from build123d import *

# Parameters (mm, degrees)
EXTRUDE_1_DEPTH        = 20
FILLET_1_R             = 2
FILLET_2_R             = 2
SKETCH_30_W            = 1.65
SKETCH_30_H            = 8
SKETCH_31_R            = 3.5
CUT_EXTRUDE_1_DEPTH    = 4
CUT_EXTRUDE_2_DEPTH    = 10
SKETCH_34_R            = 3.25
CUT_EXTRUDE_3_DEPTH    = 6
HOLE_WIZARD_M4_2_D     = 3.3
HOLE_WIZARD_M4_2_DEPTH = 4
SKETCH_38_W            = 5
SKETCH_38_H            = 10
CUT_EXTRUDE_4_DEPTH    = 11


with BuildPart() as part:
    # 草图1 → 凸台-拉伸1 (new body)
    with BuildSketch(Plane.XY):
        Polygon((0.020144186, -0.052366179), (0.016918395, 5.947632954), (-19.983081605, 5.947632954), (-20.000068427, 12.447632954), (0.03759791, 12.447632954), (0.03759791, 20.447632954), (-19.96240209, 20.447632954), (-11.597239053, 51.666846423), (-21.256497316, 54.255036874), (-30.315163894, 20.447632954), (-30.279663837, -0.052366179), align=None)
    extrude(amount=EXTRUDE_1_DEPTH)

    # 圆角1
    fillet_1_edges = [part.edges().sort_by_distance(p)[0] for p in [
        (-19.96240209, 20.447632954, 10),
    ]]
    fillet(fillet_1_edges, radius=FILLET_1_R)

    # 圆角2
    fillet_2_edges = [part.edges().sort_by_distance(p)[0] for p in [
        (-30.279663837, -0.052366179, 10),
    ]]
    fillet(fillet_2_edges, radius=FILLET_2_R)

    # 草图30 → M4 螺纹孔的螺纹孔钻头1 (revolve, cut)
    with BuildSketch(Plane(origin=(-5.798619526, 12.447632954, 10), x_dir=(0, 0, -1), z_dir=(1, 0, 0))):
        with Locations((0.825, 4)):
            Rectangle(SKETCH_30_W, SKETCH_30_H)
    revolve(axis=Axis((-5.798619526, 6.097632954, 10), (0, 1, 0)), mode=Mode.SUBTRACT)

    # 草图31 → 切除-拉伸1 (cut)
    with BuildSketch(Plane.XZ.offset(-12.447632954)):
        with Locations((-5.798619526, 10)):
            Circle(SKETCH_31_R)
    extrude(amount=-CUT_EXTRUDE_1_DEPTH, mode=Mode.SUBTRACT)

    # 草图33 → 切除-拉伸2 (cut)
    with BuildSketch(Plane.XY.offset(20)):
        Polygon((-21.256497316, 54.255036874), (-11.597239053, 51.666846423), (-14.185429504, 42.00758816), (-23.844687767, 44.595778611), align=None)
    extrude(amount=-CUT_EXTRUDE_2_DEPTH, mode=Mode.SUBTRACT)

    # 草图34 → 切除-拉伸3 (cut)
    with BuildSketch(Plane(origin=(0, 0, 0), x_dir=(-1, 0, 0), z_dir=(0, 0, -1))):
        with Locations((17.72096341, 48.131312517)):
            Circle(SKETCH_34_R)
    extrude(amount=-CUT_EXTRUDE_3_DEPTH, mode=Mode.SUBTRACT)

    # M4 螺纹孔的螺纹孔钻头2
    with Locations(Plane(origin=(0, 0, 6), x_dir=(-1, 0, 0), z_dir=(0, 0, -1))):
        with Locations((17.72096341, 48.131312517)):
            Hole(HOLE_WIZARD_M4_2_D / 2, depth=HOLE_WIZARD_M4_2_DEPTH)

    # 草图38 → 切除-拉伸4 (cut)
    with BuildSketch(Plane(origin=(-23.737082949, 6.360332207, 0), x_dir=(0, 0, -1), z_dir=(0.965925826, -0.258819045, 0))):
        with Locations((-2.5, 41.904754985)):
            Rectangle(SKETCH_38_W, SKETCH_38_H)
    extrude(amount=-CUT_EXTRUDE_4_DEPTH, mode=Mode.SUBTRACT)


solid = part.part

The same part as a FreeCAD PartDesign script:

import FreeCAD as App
import Part
import Sketcher
Q = App.Units.Quantity


def edges_at(feature, points):
    """Names of the edges that pass closest to the given points."""
    edges = feature.Shape.Edges
    near = lambda p: min(range(len(edges)), key=lambda i: edges[i].distToShape(Part.Vertex(*p))[0])
    return sorted({f"Edge{near(p) + 1}" for p in points})

doc = App.newDocument("Part")
body = doc.addObject("PartDesign::Body", "Body")

# Sketch on XY plane
sketch1 = body.newObject("Sketcher::SketchObject", "Sketch")
sketch1.AttachmentSupport = (doc.getObject("XY_Plane"), [""])
sketch1.MapMode = "FlatFace"
sketch1.addGeometry(Part.LineSegment(App.Vector(0, 0, 0), App.Vector(0, 6, 0)), False)
sketch1.addGeometry(Part.LineSegment(App.Vector(0, 6, 0), App.Vector(-20, 6, 0)), False)
sketch1.addGeometry(Part.LineSegment(App.Vector(-20, 6, 0), App.Vector(-20, 12, 0)), False)
sketch1.addGeometry(Part.LineSegment(App.Vector(-20, 12, 0), App.Vector(0, 12, 0)), False)
sketch1.addGeometry(Part.LineSegment(App.Vector(0, 12, 0), App.Vector(0, 20, 0)), False)
sketch1.addGeometry(Part.LineSegment(App.Vector(0, 20, 0), App.Vector(-20, 20, 0)), False)
sketch1.addGeometry(Part.LineSegment(App.Vector(-20, 20, 0), App.Vector(-12, 52, 0)), False)
sketch1.addGeometry(Part.LineSegment(App.Vector(-12, 52, 0), App.Vector(-21, 54, 0)), False)
sketch1.addGeometry(Part.LineSegment(App.Vector(-21, 54, 0), App.Vector(-30, 20, 0)), False)
sketch1.addGeometry(Part.LineSegment(App.Vector(-30, 20, 0), App.Vector(-30, 0, 0)), False)
sketch1.addGeometry(Part.LineSegment(App.Vector(-30, 0, 0), App.Vector(0, 0, 0)), False)
sketch1.addConstraint(Sketcher.Constraint("Coincident", 0, 2, 1, 1))
sketch1.addConstraint(Sketcher.Constraint("Coincident", 1, 2, 2, 1))
sketch1.addConstraint(Sketcher.Constraint("Coincident", 2, 2, 3, 1))
sketch1.addConstraint(Sketcher.Constraint("Coincident", 3, 2, 4, 1))
sketch1.addConstraint(Sketcher.Constraint("Coincident", 4, 2, 5, 1))
sketch1.addConstraint(Sketcher.Constraint("Coincident", 5, 2, 6, 1))
sketch1.addConstraint(Sketcher.Constraint("Coincident", 6, 2, 7, 1))
sketch1.addConstraint(Sketcher.Constraint("Coincident", 7, 2, 8, 1))
sketch1.addConstraint(Sketcher.Constraint("Coincident", 8, 2, 9, 1))
sketch1.addConstraint(Sketcher.Constraint("Coincident", 9, 2, 10, 1))
sketch1.addConstraint(Sketcher.Constraint("Coincident", 10, 2, 0, 1))
sketch1.addConstraint(Sketcher.Constraint("Horizontal", 1))
sketch1.addConstraint(Sketcher.Constraint("Horizontal", 3))
sketch1.addConstraint(Sketcher.Constraint("Vertical", 4))
sketch1.addConstraint(Sketcher.Constraint("Horizontal", 5))
sketch1.addConstraint(Sketcher.Constraint("Horizontal", 10))
sketch1.addConstraint(Sketcher.Constraint("Perpendicular", 6, 7))
sketch1.addConstraint(Sketcher.Constraint("Perpendicular", 7, 8))
sketch1.addConstraint(Sketcher.Constraint("Horizontal", 5, 2, 8, 2))
sketch1.addConstraint(Sketcher.Constraint("Equal", 1, 5))
sketch1.addConstraint(Sketcher.Constraint("DistanceX", 1, 2, 1, 1, 20.0))
sketch1.addConstraint(Sketcher.Constraint("DistanceY", 4, 1, 4, 2, 8.0))
sketch1.addConstraint(Sketcher.Constraint("Angle", 6, Q("75 deg")))
sketch1.addConstraint(Sketcher.Constraint("Distance", 0, 6.0))
sketch1.addConstraint(Sketcher.Constraint("Distance", 7, 10.0))
sketch1.addConstraint(Sketcher.Constraint("Distance", 8, 35.0))
sketch1.addConstraint(Sketcher.Constraint("DistanceY", 1, 2, 2, 2, 6.5))
sketch1.addConstraint(Sketcher.Constraint("DistanceX", 10, 1, 10, 2, 30.299808))
sketch1.addConstraint(Sketcher.Constraint("DistanceX", 8, 2, 9, 2, 0.0355))
sketch1.addConstraint(Sketcher.Constraint("DistanceX", 3, 1, 3, 2, 20.037666))
sketch1.addConstraint(Sketcher.Constraint("DistanceX", -1, 1, 0, 2, 0.016918))
sketch1.addConstraint(Sketcher.Constraint("DistanceX", 2, 2, -1, 1, 20.000068))
sketch1.addConstraint(Sketcher.Constraint("DistanceY", -1, 1, 0, 2, 5.947633))
pad1 = body.newObject("PartDesign::Pad", "Pad")
pad1.Profile = sketch1
pad1.Length = 20
doc.recompute()

fillet = body.newObject("PartDesign::Fillet", "Fillet")
fillet.Base = (pad1, edges_at(pad1, [(-19.962, 20.448, 10)]))
fillet.Radius = 2
doc.recompute()

fillet2 = body.newObject("PartDesign::Fillet", "Fillet001")
fillet2.Base = (fillet, edges_at(fillet, [(-30.28, -0.052, 10)]))
fillet2.Radius = 2

# Sketch on YZ plane
sketch2 = body.newObject("Sketcher::SketchObject", "Sketch001")
sketch2.AttachmentSupport = (doc.getObject("YZ_Plane"), [""])
sketch2.MapMode = "FlatFace"
sketch2.AttachmentOffset = App.Placement(App.Vector(0, 0, -5.79862), App.Rotation())
sketch2.addGeometry(Part.LineSegment(App.Vector(20.4, 10, 0), App.Vector(12.4, 10, 0)), False)
sketch2.addGeometry(Part.LineSegment(App.Vector(12.4, 10, 0), App.Vector(12.4, 8.3, 0)), False)
sketch2.addGeometry(Part.LineSegment(App.Vector(12.4, 8.3, 0), App.Vector(20.4, 8.3, 0)), False)
sketch2.addGeometry(Part.LineSegment(App.Vector(20.4, 8.3, 0), App.Vector(20.4, 10, 0)), False)
sketch2.addGeometry(Part.LineSegment(App.Vector(12.4, 10, 0), App.Vector(20.4, 10, 0)), True)  # axis
sketch2.addConstraint(Sketcher.Constraint("Coincident", 0, 2, 1, 1))
sketch2.addConstraint(Sketcher.Constraint("Coincident", 1, 2, 2, 1))
sketch2.addConstraint(Sketcher.Constraint("Coincident", 2, 2, 3, 1))
sketch2.addConstraint(Sketcher.Constraint("Coincident", 3, 2, 0, 1))
sketch2.addConstraint(Sketcher.Constraint("Horizontal", 0))
sketch2.addConstraint(Sketcher.Constraint("Vertical", 1))
sketch2.addConstraint(Sketcher.Constraint("Horizontal", 2))
sketch2.addConstraint(Sketcher.Constraint("Vertical", 3))
sketch2.addConstraint(Sketcher.Constraint("Horizontal", 4))
sketch2.addConstraint(Sketcher.Constraint("Coincident", 4, 1, 0, 2))
sketch2.addConstraint(Sketcher.Constraint("Vertical", 2, 2, 4, 2))
sketch2.addConstraint(Sketcher.Constraint("DistanceX", 0, 2, 0, 1, 8.0))
sketch2.addConstraint(Sketcher.Constraint("DistanceY", -1, 1, 0, 2, 10.0))
sketch2.addConstraint(Sketcher.Constraint("DistanceY", 1, 2, 1, 1, 1.65))
sketch2.addConstraint(Sketcher.Constraint("DistanceX", -1, 1, 0, 2, 12.447633))
groove = body.newObject("PartDesign::Groove", "Groove")
groove.Profile = sketch2
groove.ReferenceAxis = (sketch2, ["Axis0"])
groove.Angle = 360

# Sketch on XZ plane
sketch3 = body.newObject("Sketcher::SketchObject", "Sketch002")
sketch3.AttachmentSupport = (doc.getObject("XZ_Plane"), [""])
sketch3.MapMode = "FlatFace"
sketch3.AttachmentOffset = App.Placement(App.Vector(0, 0, -12.447633), App.Rotation())
sketch3.addGeometry(Part.Circle(App.Vector(-5.8, 10, 0), App.Vector(0, 0, 1), 3.5), False)
sketch3.addConstraint(Sketcher.Constraint("Diameter", 0, 7.0))
sketch3.addConstraint(Sketcher.Constraint("DistanceY", -1, 1, 0, 3, 10.0))
sketch3.addConstraint(Sketcher.Constraint("DistanceX", 0, 3, -1, 1, 5.79862))
pocket1 = body.newObject("PartDesign::Pocket", "Pocket")
pocket1.Profile = sketch3
pocket1.Length = 4

# Sketch on XY plane
sketch4 = body.newObject("Sketcher::SketchObject", "Sketch003")
sketch4.AttachmentSupport = (doc.getObject("XY_Plane"), [""])
sketch4.MapMode = "FlatFace"
sketch4.AttachmentOffset = App.Placement(App.Vector(0, 0, 20), App.Rotation())
sketch4.addGeometry(Part.LineSegment(App.Vector(-12, 52, 0), App.Vector(-21, 54, 0)), False)
sketch4.addGeometry(Part.LineSegment(App.Vector(-21, 54, 0), App.Vector(-24, 45, 0)), False)
sketch4.addGeometry(Part.LineSegment(App.Vector(-24, 45, 0), App.Vector(-14, 42, 0)), False)
sketch4.addGeometry(Part.LineSegment(App.Vector(-14, 42, 0), App.Vector(-12, 52, 0)), False)
sketch4.addConstraint(Sketcher.Constraint("Coincident", 0, 2, 1, 1))
sketch4.addConstraint(Sketcher.Constraint("Coincident", 1, 2, 2, 1))
sketch4.addConstraint(Sketcher.Constraint("Coincident", 2, 2, 3, 1))
sketch4.addConstraint(Sketcher.Constraint("Coincident", 3, 2, 0, 1))
sketch4.addConstraint(Sketcher.Constraint("Perpendicular", 0, 1))
sketch4.addConstraint(Sketcher.Constraint("Perpendicular", 1, 2))
sketch4.addConstraint(Sketcher.Constraint("Perpendicular", 2, 3))
sketch4.addConstraint(Sketcher.Constraint("Equal", 0, 1))
sketch4.addConstraint(Sketcher.Constraint("Angle", 0, Q("165 deg")))
sketch4.addConstraint(Sketcher.Constraint("Distance", 0, 10.0))
sketch4.addConstraint(Sketcher.Constraint("DistanceY", -1, 1, 1, 2, 44.595779))
sketch4.addConstraint(Sketcher.Constraint("DistanceX", 2, 2, -1, 1, 14.18543))
pocket2 = body.newObject("PartDesign::Pocket", "Pocket001")
pocket2.Profile = sketch4
pocket2.Length = 10

# Sketch on XY plane
sketch5 = body.newObject("Sketcher::SketchObject", "Sketch004")
sketch5.AttachmentSupport = (doc.getObject("XY_Plane"), [""])
sketch5.MapMode = "FlatFace"
sketch5.addGeometry(Part.Circle(App.Vector(-17.7, 48.1, 0), App.Vector(0, 0, 1), 3.2), False)
sketch5.addConstraint(Sketcher.Constraint("Diameter", 0, 6.5))
sketch5.addConstraint(Sketcher.Constraint("DistanceX", 0, 3, -1, 1, 17.720963))
sketch5.addConstraint(Sketcher.Constraint("DistanceY", -1, 1, 0, 3, 48.131313))
pocket3 = body.newObject("PartDesign::Pocket", "Pocket002")
pocket3.Profile = sketch5
pocket3.Length = 6
pocket3.Reversed = True

# Sketch on XY plane
sketch6 = body.newObject("Sketcher::SketchObject", "Sketch005")
sketch6.AttachmentSupport = (doc.getObject("XY_Plane"), [""])
sketch6.MapMode = "FlatFace"
sketch6.AttachmentOffset = App.Placement(App.Vector(0, 0, 6), App.Rotation())
sketch6.addGeometry(Part.Circle(App.Vector(-17.7, 48.1, 0), App.Vector(0, 0, 1), 1.6), False)
sketch6.addConstraint(Sketcher.Constraint("Diameter", 0, 3.3))
sketch6.addConstraint(Sketcher.Constraint("DistanceX", 0, 3, -1, 1, 17.720963))
sketch6.addConstraint(Sketcher.Constraint("DistanceY", -1, 1, 0, 3, 48.131313))
doc.recompute()
hole = body.newObject("PartDesign::Hole", "Hole")
hole.Profile = sketch6
hole.ThreadType = "None"
hole.Diameter = 3.3
hole.DepthType = "Dimension"
hole.Depth = 4
hole.DrillPoint = "Flat"
hole.Reversed = True

# Sketch on an angled plane
sketch7 = body.newObject("Sketcher::SketchObject", "Sketch006")
sketch7.Placement = App.Placement(App.Vector(-23.737083, 6.360332, 0), App.Rotation(App.Vector(0, 0, -1), App.Vector(0.258819045, 0.965925826, 0), App.Vector(0.965925826, -0.258819045, 0), "ZXY"))
sketch7.addGeometry(Part.LineSegment(App.Vector(-5, 47, 0), App.Vector(-5, 37, 0)), False)
sketch7.addGeometry(Part.LineSegment(App.Vector(-5, 37, 0), App.Vector(0, 37, 0)), False)
sketch7.addGeometry(Part.LineSegment(App.Vector(0, 37, 0), App.Vector(0, 47, 0)), False)
sketch7.addGeometry(Part.LineSegment(App.Vector(0, 47, 0), App.Vector(-5, 47, 0)), False)
sketch7.addConstraint(Sketcher.Constraint("Coincident", 0, 2, 1, 1))
sketch7.addConstraint(Sketcher.Constraint("Coincident", 1, 2, 2, 1))
sketch7.addConstraint(Sketcher.Constraint("Coincident", 2, 2, 3, 1))
sketch7.addConstraint(Sketcher.Constraint("Coincident", 3, 2, 0, 1))
sketch7.addConstraint(Sketcher.Constraint("Vertical", 0))
sketch7.addConstraint(Sketcher.Constraint("Horizontal", 1))
sketch7.addConstraint(Sketcher.Constraint("Vertical", 2))
sketch7.addConstraint(Sketcher.Constraint("Horizontal", 3))
sketch7.addConstraint(Sketcher.Constraint("PointOnObject", 1, 2, -2))
sketch7.addConstraint(Sketcher.Constraint("DistanceX", 1, 1, 1, 2, 5.0))
sketch7.addConstraint(Sketcher.Constraint("DistanceY", 0, 2, 0, 1, 10.0))
sketch7.addConstraint(Sketcher.Constraint("DistanceY", -1, 1, 0, 2, 36.904755))
pocket4 = body.newObject("PartDesign::Pocket", "Pocket003")
pocket4.Profile = sketch7
pocket4.Length = 11

doc.recompute()
